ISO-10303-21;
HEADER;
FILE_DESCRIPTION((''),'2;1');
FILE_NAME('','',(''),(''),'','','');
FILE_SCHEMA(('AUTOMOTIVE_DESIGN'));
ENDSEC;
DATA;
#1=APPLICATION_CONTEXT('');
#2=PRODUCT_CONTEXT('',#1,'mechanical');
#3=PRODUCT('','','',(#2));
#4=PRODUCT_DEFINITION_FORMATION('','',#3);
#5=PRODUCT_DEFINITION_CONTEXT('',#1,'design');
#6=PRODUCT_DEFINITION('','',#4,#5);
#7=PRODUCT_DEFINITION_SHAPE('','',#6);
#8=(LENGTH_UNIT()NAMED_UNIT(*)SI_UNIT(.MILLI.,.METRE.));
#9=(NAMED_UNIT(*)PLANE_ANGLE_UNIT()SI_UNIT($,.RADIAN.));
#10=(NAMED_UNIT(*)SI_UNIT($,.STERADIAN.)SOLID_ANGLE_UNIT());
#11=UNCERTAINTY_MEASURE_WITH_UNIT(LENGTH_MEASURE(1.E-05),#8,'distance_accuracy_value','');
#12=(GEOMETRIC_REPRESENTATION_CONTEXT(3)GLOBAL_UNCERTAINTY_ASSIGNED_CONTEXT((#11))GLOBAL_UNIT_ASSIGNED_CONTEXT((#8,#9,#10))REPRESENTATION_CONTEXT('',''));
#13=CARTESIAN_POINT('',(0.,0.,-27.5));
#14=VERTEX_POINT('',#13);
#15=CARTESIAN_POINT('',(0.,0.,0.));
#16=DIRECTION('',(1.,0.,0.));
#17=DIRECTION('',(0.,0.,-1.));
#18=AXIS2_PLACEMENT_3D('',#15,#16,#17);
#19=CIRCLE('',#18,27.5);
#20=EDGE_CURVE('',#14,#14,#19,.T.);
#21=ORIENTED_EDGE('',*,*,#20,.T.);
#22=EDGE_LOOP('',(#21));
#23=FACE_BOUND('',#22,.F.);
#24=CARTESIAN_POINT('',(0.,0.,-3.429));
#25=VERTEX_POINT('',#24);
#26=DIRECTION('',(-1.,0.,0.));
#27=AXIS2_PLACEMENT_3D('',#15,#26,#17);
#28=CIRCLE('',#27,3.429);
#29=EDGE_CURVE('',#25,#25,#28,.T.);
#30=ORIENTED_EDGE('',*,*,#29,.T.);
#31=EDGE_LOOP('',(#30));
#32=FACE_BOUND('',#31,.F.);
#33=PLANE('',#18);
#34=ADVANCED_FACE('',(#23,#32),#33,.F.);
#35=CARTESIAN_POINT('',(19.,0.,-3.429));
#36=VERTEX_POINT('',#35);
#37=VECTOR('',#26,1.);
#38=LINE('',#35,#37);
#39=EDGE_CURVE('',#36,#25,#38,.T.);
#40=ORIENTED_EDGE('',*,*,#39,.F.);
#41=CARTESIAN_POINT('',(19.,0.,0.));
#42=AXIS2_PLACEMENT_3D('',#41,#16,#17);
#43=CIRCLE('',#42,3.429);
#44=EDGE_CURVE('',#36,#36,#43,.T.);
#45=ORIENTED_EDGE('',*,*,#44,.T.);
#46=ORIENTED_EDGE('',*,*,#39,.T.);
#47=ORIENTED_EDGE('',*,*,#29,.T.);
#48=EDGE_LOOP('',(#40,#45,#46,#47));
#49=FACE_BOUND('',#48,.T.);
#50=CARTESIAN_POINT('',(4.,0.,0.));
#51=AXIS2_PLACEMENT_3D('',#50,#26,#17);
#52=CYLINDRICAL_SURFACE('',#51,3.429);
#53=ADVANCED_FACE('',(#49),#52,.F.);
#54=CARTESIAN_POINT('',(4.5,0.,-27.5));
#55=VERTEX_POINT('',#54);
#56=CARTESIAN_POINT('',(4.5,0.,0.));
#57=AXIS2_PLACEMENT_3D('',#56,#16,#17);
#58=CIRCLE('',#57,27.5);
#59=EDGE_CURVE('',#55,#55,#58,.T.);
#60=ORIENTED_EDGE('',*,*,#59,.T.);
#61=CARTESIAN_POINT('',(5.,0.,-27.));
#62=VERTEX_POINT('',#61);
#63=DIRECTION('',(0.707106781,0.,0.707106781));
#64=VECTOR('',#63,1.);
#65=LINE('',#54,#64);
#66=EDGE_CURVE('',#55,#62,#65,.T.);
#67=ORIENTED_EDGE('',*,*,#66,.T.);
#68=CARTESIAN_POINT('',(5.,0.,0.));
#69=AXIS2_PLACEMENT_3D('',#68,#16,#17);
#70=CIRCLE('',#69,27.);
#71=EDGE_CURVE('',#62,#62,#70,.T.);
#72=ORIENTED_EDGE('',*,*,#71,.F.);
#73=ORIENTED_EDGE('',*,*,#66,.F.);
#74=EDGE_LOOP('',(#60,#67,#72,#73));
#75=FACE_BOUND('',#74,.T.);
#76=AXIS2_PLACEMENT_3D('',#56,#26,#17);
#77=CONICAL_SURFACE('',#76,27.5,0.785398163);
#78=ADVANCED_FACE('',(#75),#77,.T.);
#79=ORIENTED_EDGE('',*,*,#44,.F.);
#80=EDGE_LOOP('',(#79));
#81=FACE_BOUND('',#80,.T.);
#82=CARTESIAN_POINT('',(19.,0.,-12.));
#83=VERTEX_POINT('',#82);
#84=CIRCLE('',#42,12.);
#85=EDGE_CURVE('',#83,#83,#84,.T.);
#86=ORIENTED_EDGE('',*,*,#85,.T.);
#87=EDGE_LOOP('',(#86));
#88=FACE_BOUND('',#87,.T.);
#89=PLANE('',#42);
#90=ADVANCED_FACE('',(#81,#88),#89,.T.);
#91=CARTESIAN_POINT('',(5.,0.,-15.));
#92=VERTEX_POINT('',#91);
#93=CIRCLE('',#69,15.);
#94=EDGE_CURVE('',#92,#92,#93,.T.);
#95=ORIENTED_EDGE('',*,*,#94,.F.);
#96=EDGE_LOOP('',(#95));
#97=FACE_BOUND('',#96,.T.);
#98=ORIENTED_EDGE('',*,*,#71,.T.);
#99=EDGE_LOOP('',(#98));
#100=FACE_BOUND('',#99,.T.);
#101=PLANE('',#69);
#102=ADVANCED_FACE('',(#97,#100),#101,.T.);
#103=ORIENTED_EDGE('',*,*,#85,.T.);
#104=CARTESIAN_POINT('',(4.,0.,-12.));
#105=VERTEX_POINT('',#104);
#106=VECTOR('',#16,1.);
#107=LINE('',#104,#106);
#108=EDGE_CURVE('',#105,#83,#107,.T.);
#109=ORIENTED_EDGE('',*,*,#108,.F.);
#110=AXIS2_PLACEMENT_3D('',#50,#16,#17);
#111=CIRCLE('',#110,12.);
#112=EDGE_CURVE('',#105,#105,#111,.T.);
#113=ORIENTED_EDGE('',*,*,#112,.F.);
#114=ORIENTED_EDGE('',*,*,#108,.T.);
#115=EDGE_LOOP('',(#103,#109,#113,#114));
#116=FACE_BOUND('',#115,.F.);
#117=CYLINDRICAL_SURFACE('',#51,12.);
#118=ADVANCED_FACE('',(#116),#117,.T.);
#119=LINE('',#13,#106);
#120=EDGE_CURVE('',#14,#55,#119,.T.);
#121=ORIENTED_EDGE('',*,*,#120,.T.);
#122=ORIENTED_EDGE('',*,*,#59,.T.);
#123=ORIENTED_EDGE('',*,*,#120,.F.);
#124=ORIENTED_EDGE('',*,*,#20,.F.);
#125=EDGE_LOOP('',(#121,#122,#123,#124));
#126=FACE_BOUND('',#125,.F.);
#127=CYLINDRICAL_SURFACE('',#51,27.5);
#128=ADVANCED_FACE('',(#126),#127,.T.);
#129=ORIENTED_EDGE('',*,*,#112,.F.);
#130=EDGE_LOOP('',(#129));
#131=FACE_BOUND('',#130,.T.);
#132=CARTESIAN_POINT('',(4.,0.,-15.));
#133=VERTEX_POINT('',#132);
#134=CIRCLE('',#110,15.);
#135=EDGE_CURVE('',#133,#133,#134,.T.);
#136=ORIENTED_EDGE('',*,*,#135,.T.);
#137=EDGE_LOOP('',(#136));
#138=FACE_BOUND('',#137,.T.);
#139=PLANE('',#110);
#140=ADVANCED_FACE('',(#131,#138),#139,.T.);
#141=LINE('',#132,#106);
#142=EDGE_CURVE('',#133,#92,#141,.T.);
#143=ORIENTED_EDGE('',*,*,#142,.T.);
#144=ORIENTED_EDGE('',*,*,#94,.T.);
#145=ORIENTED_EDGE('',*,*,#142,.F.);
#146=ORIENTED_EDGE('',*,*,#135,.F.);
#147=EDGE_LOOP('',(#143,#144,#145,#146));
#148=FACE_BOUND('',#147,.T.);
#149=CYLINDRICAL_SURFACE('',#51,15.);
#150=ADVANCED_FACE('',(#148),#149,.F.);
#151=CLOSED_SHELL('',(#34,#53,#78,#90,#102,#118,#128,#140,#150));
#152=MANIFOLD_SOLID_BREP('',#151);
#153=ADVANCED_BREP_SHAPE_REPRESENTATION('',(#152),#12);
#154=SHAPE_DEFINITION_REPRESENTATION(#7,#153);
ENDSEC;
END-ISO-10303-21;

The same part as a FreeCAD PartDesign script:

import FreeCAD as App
import Part
import Sketcher


def edges_at(feature, points):
    """Names of the edges that pass closest to the given points."""
    edges = feature.Shape.Edges
    near = lambda p: min(range(len(edges)), key=lambda i: edges[i].distToShape(Part.Vertex(*p))[0])
    return sorted({f"Edge{near(p) + 1}" for p in points})

doc = App.newDocument("Part")
params = doc.addObject("Spreadsheet::Sheet", "Params")
for row, (alias, value) in enumerate([
    ("sketch1_diameter", "55 mm"),
    ("pad1_length", "4 mm"),
    ("sketch2_diameter", "55 mm"),
    ("sketch2_diameter2", "30 mm"),
    ("pad2_length", "1 mm"),
    ("sketch4_diameter", "24 mm"),
    ("pad3_length", "15 mm"),
    ("chamfer_size", "0.5 mm"),
], start=1):
    params.set(f"A{row}", alias)
    params.set(f"B{row}", "=" + value)
    params.setAlias(f"B{row}", alias)

body = doc.addObject("PartDesign::Body", "Body")

# Sketch on YZ plane
sketch1 = body.newObject("Sketcher::SketchObject", "Sketch")
sketch1.AttachmentSupport = (doc.getObject("YZ_Plane"), [""])
sketch1.MapMode = "FlatFace"
sketch1.addGeometry(Part.Circle(App.Vector(0, 0, 0), App.Vector(0, 0, 1), 28), False)
sketch1.addConstraint(Sketcher.Constraint("Coincident", 0, 3, -1, 1))
sketch1.addConstraint(Sketcher.Constraint("Diameter", 0, 55.0))
sketch1.setExpression("Constraints[1]", "Params.sketch1_diameter")
pad1 = body.newObject("PartDesign::Pad", "Pad")
pad1.Profile = sketch1
pad1.setExpression("Length", "Params.pad1_length")

# Sketch on YZ plane
sketch2 = body.newObject("Sketcher::SketchObject", "Sketch001")
sketch2.AttachmentSupport = (doc.getObject("YZ_Plane"), [""])
sketch2.MapMode = "FlatFace"
sketch2.AttachmentOffset = App.Placement(App.Vector(0, 0, 4), App.Rotation())
sketch2.addGeometry(Part.Circle(App.Vector(0, 0, 0), App.Vector(0, 0, 1), 28), False)
sketch2.addGeometry(Part.Circle(App.Vector(0, 0, 0), App.Vector(0, 0, 1), 15), False)
sketch2.addConstraint(Sketcher.Constraint("Coincident", 0, 3, -1, 1))
sketch2.addConstraint(Sketcher.Constraint("Coincident", 1, 3, -1, 1))
sketch2.addConstraint(Sketcher.Constraint("Diameter", 0, 55.0))
sketch2.addConstraint(Sketcher.Constraint("Diameter", 1, 30.0))
sketch2.setExpression("Constraints[2]", "Params.sketch2_diameter")
sketch2.setExpression("Constraints[3]", "Params.sketch2_diameter2")
pad2 = body.newObject("PartDesign::Pad", "Pad001")
pad2.Profile = sketch2
pad2.setExpression("Length", "Params.pad2_length")

# Sketch on YZ plane
sketch3 = body.newObject("Sketcher::SketchObject", "Sketch002")
sketch3.AttachmentSupport = (doc.getObject("YZ_Plane"), [""])
sketch3.MapMode = "FlatFace"
sketch3.addGeometry(Part.Circle(App.Vector(0, 0, 0), App.Vector(0, 0, 1), 3.4), False)
sketch3.addConstraint(Sketcher.Constraint("Coincident", 0, 3, -1, 1))
sketch3.addConstraint(Sketcher.Constraint("Diameter", 0, 6.858))
pocket1 = body.newObject("PartDesign::Pocket", "Pocket")
pocket1.Profile = sketch3
pocket1.Type = "ThroughAll"
pocket1.Midplane = True

# Sketch on YZ plane
sketch4 = body.newObject("Sketcher::SketchObject", "Sketch003")
sketch4.AttachmentSupport = (doc.getObject("YZ_Plane"), [""])
sketch4.MapMode = "FlatFace"
sketch4.AttachmentOffset = App.Placement(App.Vector(0, 0, 4), App.Rotation())
sketch4.addGeometry(Part.Circle(App.Vector(0, 0, 0), App.Vector(0, 0, 1), 12), False)
sketch4.addGeometry(Part.Circle(App.Vector(0, 0, 0), App.Vector(0, 0, 1), 3.4), False)
sketch4.addConstraint(Sketcher.Constraint("Coincident", 0, 3, -1, 1))
sketch4.addConstraint(Sketcher.Constraint("Coincident", 1, 3, -1, 1))
sketch4.addConstraint(Sketcher.Constraint("Diameter", 0, 24.0))
sketch4.addConstraint(Sketcher.Constraint("Diameter", 1, 6.858))
sketch4.setExpression("Constraints[2]", "Params.sketch4_diameter")
pad3 = body.newObject("PartDesign::Pad", "Pad002")
pad3.Profile = sketch4
pad3.setExpression("Length", "Params.pad3_length")
doc.recompute()

chamfer = body.newObject("PartDesign::Chamfer", "Chamfer")
chamfer.Base = (pad3, edges_at(pad3, [(5, 0, 27.5)]))
chamfer.setExpression("Size", "Params.chamfer_size")

doc.recompute()
